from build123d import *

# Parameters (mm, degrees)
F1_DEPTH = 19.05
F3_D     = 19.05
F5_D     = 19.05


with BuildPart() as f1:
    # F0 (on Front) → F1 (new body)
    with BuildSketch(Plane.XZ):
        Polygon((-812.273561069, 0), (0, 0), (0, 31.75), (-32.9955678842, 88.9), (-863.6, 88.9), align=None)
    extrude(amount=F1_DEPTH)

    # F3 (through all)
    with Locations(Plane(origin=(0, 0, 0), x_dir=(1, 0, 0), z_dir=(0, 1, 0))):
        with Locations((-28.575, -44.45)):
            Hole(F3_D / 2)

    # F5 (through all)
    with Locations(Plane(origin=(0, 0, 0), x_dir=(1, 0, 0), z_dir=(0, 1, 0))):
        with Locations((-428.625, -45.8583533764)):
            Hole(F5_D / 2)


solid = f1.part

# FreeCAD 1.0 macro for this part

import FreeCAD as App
import Part
import Sketcher
Q = App.Units.Quantity

doc = App.newDocument("Part")
body = doc.addObject("PartDesign::Body", "Body")

# Sketch on XZ plane
sketch1 = doc.addObject("Sketcher::SketchObject", "Sketch")
body.addObject(sketch1)
sketch1.AttachmentSupport = (doc.XZ_Plane, [""])
sketch1.MapMode = "FlatFace"
sketch1.addGeometry(Part.LineSegment(App.Vector(-812.273561, 0, 0), App.Vector(0, 0, 0)), False)
sketch1.addGeometry(Part.LineSegment(App.Vector(0, 0, 0), App.Vector(0, 31.75, 0)), False)
sketch1.addGeometry(Part.LineSegment(App.Vector(0, 31.75, 0), App.Vector(-32.995568, 88.9, 0)), False)
sketch1.addGeometry(Part.LineSegment(App.Vector(-32.995568, 88.9, 0), App.Vector(-863.6, 88.9, 0)), False)
sketch1.addGeometry(Part.LineSegment(App.Vector(-863.6, 88.9, 0), App.Vector(-812.273561, 0, 0)), False)
sketch1.addConstraint(Sketcher.Constraint("Coincident", 0, 2, 1, 1))
sketch1.addConstraint(Sketcher.Constraint("Coincident", 1, 2, 2, 1))
sketch1.addConstraint(Sketcher.Constraint("Coincident", 2, 2, 3, 1))
sketch1.addConstraint(Sketcher.Constraint("Coincident", 3, 2, 4, 1))
sketch1.addConstraint(Sketcher.Constraint("Coincident", 4, 2, 0, 1))
sketch1.addConstraint(Sketcher.Constraint("Horizontal", 0))
sketch1.addConstraint(Sketcher.Constraint("Vertical", 1))
sketch1.addConstraint(Sketcher.Constraint("Horizontal", 3))
sketch1.addConstraint(Sketcher.Constraint("Coincident", 0, 2, -1, 1))
sketch1.addConstraint(Sketcher.Constraint("Parallel", 2, 4))
sketch1.addConstraint(Sketcher.Constraint("DistanceX", 3, 2, -1, 1, Q("34 in")))
sketch1.addConstraint(Sketcher.Constraint("Angle", 2, Q("120 deg")))
sketch1.addConstraint(Sketcher.Constraint("DistanceY", 1, 1, 1, 2, Q("1.25 in")))
sketch1.addConstraint(Sketcher.Constraint("DistanceY", -1, 1, 2, 2, Q("3.5 in")))
pad1 = doc.addObject("PartDesign::Pad", "Pad")
body.addObject(pad1)
pad1.Profile = sketch1
pad1.Length = Q("0.75 in")

# Sketch on XZ plane
sketch2 = doc.addObject("Sketcher::SketchObject", "Sketch001")
body.addObject(sketch2)
sketch2.AttachmentSupport = (doc.XZ_Plane, [""])
sketch2.MapMode = "FlatFace"
sketch2.addGeometry(Part.Circle(App.Vector(-28.575, 44.45, 0), App.Vector(0, 0, 1), 9.525), False)
sketch2.addConstraint(Sketcher.Constraint("Diameter", 0, Q("0.75 in")))
sketch2.addConstraint(Sketcher.Constraint("DistanceY", -1, 1, 0, 3, Q("1.75 in")))
sketch2.addConstraint(Sketcher.Constraint("DistanceX", 0, 3, -1, 1, Q("1.125 in")))
doc.recompute()
hole = doc.addObject("PartDesign::Hole", "Hole")
body.addObject(hole)
hole.Profile = sketch2
hole.ThreadType = "None"
hole.Diameter = Q("0.75 in")
hole.DepthType = "ThroughAll"
hole.Reversed = True

# Sketch on XZ plane
sketch3 = doc.addObject("Sketcher::SketchObject", "Sketch002")
body.addObject(sketch3)
sketch3.AttachmentSupport = (doc.XZ_Plane, [""])
sketch3.MapMode = "FlatFace"
sketch3.addGeometry(Part.Circle(App.Vector(-428.625, 45.858353, 0), App.Vector(0, 0, 1), 9.525), False)
sketch3.addConstraint(Sketcher.Constraint("Diameter", 0, Q("0.75 in")))
sketch3.addConstraint(Sketcher.Constraint("DistanceX", 0, 3, -1, 1, Q("16.875 in")))
sketch3.addConstraint(Sketcher.Constraint("DistanceY", -1, 1, 0, 3, 45.858353))
doc.recompute()
hole2 = doc.addObject("PartDesign::Hole", "Hole001")
body.addObject(hole2)
hole2.Profile = sketch3
hole2.ThreadType = "None"
hole2.Diameter = Q("0.75 in")
hole2.DepthType = "ThroughAll"
hole2.Reversed = True

doc.recompute()
